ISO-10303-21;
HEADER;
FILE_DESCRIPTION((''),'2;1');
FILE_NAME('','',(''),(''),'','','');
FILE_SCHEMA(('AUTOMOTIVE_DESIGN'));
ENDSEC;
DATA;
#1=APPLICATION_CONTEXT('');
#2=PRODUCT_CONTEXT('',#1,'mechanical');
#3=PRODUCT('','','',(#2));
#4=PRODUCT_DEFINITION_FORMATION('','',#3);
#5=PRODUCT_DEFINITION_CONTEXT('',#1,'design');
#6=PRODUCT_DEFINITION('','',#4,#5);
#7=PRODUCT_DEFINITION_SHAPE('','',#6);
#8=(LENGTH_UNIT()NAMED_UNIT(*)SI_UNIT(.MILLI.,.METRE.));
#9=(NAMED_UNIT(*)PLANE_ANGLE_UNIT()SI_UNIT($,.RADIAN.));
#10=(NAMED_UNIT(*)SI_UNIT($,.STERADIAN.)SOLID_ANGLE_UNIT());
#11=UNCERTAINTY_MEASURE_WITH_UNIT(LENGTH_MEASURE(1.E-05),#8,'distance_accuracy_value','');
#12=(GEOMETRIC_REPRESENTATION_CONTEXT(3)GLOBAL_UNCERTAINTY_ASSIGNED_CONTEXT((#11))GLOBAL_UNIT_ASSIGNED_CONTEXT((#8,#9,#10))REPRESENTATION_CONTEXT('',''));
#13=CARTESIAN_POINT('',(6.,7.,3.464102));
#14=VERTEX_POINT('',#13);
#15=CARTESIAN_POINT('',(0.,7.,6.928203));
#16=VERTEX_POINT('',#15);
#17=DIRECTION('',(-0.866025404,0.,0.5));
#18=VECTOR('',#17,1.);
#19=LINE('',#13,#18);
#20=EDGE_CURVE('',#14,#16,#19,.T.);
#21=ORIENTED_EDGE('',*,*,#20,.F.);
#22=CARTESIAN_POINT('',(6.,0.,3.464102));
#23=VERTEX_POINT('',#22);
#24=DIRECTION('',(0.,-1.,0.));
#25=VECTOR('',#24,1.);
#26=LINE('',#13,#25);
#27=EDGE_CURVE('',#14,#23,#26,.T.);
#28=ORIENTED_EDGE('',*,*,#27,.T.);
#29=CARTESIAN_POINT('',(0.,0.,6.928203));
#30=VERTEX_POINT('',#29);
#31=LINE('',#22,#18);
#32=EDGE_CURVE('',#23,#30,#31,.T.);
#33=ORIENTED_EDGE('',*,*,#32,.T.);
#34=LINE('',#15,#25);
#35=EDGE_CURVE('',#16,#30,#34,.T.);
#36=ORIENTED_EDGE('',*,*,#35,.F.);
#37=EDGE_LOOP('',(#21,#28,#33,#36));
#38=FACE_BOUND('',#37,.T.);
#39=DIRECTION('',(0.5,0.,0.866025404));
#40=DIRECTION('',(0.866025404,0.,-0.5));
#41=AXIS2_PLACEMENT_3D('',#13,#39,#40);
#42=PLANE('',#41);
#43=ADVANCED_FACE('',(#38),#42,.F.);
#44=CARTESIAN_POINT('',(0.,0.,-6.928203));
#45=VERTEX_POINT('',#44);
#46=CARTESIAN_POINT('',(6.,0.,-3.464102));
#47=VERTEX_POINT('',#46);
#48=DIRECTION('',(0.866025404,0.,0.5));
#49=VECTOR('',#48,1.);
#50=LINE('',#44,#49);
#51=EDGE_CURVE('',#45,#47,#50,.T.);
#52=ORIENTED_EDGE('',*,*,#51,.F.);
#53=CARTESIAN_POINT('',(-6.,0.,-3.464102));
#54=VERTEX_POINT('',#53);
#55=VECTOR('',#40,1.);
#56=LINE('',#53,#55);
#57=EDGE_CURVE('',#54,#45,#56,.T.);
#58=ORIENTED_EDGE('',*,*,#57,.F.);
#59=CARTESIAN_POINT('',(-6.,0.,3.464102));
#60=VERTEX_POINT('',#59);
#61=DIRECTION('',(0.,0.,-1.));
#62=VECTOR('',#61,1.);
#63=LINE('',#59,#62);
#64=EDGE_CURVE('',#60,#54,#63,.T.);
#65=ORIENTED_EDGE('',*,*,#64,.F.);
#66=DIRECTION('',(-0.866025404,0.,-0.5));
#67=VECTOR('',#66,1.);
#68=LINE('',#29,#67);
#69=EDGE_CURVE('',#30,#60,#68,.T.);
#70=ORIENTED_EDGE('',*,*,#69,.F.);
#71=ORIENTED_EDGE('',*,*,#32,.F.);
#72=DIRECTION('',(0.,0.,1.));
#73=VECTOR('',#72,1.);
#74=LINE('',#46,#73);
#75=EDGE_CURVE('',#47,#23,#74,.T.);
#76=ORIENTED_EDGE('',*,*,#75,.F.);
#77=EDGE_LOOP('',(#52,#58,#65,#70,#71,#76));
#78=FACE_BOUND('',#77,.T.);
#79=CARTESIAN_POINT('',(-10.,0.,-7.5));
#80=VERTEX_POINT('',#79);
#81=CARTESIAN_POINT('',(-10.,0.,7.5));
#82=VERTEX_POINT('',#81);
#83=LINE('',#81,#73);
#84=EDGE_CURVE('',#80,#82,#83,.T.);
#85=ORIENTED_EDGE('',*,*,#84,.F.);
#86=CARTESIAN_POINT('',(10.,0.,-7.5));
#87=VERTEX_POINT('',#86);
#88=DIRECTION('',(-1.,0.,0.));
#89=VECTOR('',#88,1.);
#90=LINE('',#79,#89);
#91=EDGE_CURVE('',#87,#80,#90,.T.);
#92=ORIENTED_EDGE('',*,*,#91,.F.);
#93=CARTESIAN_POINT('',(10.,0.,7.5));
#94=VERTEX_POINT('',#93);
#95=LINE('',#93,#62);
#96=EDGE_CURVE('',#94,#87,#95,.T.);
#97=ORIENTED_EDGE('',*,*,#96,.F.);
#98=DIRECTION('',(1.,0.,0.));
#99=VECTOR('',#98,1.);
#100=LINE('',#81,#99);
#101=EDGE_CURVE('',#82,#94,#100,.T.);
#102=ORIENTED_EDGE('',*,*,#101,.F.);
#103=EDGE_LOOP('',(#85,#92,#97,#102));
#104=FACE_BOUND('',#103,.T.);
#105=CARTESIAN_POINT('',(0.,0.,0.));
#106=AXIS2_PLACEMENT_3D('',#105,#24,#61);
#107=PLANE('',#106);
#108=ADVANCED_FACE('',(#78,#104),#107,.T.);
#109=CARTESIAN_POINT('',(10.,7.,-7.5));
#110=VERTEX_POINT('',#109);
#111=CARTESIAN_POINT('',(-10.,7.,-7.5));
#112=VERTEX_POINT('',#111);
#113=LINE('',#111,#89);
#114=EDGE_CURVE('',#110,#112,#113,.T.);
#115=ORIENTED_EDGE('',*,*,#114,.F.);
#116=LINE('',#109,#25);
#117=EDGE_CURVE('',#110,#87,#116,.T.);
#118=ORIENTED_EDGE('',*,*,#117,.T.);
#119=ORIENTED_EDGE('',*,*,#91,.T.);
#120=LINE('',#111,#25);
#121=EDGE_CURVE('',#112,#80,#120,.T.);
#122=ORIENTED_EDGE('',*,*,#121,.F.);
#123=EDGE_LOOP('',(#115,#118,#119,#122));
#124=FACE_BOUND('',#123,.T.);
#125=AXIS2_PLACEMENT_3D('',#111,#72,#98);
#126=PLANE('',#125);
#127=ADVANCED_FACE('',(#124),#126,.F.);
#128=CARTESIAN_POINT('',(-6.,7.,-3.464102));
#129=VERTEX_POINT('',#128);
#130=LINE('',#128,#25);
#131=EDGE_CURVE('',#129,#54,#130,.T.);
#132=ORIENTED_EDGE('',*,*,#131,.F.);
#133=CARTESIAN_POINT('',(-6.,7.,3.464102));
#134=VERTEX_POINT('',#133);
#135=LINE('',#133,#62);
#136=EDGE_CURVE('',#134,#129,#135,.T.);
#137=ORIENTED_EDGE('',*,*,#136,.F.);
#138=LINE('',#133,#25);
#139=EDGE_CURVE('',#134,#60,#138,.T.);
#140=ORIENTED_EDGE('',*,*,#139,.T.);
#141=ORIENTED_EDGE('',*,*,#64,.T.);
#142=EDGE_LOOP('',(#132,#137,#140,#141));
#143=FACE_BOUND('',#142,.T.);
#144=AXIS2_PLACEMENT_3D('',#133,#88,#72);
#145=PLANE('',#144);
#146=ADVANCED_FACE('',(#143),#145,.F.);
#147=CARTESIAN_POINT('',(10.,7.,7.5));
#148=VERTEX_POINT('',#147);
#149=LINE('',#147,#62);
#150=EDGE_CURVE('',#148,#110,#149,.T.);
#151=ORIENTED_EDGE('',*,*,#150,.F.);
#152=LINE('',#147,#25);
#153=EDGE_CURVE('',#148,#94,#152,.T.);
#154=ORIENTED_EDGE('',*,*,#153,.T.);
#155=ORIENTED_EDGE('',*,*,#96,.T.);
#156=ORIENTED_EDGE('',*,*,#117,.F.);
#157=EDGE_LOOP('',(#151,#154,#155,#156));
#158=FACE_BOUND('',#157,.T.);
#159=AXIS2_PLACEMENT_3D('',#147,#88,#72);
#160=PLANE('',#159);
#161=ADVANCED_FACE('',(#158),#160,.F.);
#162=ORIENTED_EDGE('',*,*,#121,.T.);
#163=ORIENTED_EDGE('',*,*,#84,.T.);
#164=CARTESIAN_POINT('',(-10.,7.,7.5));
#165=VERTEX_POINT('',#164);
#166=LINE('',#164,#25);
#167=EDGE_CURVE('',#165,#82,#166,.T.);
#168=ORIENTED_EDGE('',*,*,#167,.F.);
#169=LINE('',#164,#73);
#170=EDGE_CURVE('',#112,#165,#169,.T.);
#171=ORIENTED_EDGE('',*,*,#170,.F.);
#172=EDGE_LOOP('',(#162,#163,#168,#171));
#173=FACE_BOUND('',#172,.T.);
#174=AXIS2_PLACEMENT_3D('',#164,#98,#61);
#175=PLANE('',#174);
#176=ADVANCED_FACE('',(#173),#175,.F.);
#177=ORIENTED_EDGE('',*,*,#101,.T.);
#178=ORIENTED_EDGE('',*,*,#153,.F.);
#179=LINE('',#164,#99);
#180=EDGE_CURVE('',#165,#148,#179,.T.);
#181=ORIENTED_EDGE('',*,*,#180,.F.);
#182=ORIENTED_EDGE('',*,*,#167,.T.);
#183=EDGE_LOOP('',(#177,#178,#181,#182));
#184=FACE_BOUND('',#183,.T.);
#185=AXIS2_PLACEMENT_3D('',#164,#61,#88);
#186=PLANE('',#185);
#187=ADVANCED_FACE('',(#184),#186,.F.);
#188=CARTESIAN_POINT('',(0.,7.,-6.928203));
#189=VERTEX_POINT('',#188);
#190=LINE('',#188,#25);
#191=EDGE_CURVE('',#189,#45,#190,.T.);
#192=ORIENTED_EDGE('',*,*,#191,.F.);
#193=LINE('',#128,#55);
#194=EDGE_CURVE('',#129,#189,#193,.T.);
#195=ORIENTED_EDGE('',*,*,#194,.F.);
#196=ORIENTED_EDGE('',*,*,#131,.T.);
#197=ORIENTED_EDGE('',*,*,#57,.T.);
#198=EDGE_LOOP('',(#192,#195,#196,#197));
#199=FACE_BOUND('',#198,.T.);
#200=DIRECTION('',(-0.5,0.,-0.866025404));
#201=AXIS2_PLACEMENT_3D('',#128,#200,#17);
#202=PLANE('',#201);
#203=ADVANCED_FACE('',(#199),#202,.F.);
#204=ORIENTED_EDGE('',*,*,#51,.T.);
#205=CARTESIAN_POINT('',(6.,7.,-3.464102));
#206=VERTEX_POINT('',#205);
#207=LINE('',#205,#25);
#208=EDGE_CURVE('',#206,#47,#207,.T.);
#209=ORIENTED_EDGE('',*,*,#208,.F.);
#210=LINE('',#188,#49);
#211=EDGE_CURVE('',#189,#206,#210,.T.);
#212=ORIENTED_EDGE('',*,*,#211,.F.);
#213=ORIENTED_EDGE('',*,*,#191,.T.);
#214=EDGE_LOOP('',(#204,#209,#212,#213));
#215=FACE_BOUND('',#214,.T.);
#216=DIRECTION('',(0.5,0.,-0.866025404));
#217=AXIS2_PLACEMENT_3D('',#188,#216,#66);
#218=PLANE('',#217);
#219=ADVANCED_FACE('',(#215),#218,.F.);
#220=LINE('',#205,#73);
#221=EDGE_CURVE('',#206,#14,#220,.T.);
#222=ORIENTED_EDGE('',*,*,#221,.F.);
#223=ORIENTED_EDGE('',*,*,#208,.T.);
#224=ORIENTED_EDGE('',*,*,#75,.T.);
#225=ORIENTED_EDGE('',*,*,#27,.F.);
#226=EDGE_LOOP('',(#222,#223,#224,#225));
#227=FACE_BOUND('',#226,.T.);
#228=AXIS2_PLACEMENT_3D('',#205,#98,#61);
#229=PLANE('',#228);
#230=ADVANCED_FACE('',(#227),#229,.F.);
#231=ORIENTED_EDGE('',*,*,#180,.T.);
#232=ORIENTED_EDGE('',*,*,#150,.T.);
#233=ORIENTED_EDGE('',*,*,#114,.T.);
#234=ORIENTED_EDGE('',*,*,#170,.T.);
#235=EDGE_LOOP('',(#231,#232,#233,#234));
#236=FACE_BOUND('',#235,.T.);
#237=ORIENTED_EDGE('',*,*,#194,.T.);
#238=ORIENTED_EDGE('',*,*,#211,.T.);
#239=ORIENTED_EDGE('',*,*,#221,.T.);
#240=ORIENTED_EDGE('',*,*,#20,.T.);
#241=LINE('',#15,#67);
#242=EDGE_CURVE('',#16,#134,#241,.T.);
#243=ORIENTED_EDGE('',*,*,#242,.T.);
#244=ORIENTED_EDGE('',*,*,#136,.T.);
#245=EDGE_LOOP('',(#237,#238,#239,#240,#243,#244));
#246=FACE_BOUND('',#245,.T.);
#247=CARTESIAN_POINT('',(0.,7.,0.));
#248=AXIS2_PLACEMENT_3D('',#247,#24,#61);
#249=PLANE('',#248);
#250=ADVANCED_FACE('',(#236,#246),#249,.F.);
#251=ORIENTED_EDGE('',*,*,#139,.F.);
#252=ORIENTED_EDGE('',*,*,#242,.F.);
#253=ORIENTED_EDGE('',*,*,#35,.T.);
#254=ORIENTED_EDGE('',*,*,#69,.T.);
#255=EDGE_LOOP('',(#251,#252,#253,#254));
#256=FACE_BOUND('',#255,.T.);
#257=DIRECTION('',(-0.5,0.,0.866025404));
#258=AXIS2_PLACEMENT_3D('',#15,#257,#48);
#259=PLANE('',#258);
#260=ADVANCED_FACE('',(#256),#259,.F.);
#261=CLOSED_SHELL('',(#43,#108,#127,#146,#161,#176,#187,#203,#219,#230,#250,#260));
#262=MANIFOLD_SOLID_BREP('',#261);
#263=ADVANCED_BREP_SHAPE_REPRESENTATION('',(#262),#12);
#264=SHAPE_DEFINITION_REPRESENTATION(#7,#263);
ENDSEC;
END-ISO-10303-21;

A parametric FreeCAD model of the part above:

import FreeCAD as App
import Part
import Sketcher
from FreeCAD import Vector
Q = App.Units.Quantity


def add_polygon(sketch, points):
    """Adds a closed chain of lines whose ends are joined by coincident constraints."""
    first, n = sketch.GeometryCount, len(points)
    for a, b in zip(points, points[1:] + points[:1]):
        sketch.addGeometry(Part.LineSegment(App.Vector(*a, 0), App.Vector(*b, 0)), False)
    for i in range(n):
        sketch.addConstraint(Sketcher.Constraint("Coincident", first + i, 2, first + (i + 1) % n, 1))

doc = App.newDocument("Part")
body = doc.addObject("PartDesign::Body", "Body")

sketch1 = body.newObject("Sketcher::SketchObject", "Sketch")
sketch1.AttachmentSupport = (doc.getObject("XZ_Plane"), [""])
sketch1.MapMode = "FlatFace"
add_polygon(sketch1, [(-10, -8), (-10, 8), (10, 8), (10, -8)])
sketch1.addConstraint(Sketcher.Constraint("Vertical", 0))
sketch1.addConstraint(Sketcher.Constraint("Horizontal", 1))
sketch1.addConstraint(Sketcher.Constraint("Vertical", 2))
sketch1.addConstraint(Sketcher.Constraint("Horizontal", 3))
sketch1.addConstraint(Sketcher.Constraint("Symmetric", 0, 2, 2, 2, -1, 1))
sketch1.addConstraint(Sketcher.Constraint("DistanceX", 1, 1, 1, 2, Q("20 mm")))
sketch1.addConstraint(Sketcher.Constraint("DistanceY", 0, 1, 0, 2, Q("15 mm")))
pad1 = body.newObject("PartDesign::Pad", "Pad")
pad1.Profile = sketch1
pad1.Length = 7
pad1.Reversed = True

sketch2 = body.newObject("Sketcher::SketchObject", "Sketch001")
sketch2.AttachmentSupport = (doc.getObject("XZ_Plane"), [""])
sketch2.MapMode = "FlatFace"
add_polygon(sketch2, [(0, 7), (-6, 3), (-6, -3), (0, -7), (6, -3), (6, 3)])
sketch2.addConstraint(Sketcher.Constraint("Vertical", 1))
sketch2.addConstraint(Sketcher.Constraint("Vertical", 4))
sketch2.addConstraint(Sketcher.Constraint("Symmetric", 0, 2, 3, 2, -1, 1))
sketch2.addConstraint(Sketcher.Constraint("Symmetric", 2, 2, 5, 2, -1, 1))
sketch2.addConstraint(Sketcher.Constraint("PointOnObject", 2, 2, -2))
sketch2.addConstraint(Sketcher.Constraint("Parallel", 2, 5))
sketch2.addConstraint(Sketcher.Constraint("Horizontal", 1, 2, 3, 2))
sketch2.addConstraint(Sketcher.Constraint("Angle", 0, Q("-150 deg")))
sketch2.addConstraint(Sketcher.Constraint("DistanceX", 0, 2, -1, 1, Q("6 mm")))
sketch2.addConstraint(Sketcher.Constraint("DistanceY", -1, 1, 0, 2, Q("3.464102 mm")))
pocket1 = body.newObject("PartDesign::Pocket", "Pocket")
pocket1.Profile = sketch2
pocket1.Length = 7

doc.recompute()
